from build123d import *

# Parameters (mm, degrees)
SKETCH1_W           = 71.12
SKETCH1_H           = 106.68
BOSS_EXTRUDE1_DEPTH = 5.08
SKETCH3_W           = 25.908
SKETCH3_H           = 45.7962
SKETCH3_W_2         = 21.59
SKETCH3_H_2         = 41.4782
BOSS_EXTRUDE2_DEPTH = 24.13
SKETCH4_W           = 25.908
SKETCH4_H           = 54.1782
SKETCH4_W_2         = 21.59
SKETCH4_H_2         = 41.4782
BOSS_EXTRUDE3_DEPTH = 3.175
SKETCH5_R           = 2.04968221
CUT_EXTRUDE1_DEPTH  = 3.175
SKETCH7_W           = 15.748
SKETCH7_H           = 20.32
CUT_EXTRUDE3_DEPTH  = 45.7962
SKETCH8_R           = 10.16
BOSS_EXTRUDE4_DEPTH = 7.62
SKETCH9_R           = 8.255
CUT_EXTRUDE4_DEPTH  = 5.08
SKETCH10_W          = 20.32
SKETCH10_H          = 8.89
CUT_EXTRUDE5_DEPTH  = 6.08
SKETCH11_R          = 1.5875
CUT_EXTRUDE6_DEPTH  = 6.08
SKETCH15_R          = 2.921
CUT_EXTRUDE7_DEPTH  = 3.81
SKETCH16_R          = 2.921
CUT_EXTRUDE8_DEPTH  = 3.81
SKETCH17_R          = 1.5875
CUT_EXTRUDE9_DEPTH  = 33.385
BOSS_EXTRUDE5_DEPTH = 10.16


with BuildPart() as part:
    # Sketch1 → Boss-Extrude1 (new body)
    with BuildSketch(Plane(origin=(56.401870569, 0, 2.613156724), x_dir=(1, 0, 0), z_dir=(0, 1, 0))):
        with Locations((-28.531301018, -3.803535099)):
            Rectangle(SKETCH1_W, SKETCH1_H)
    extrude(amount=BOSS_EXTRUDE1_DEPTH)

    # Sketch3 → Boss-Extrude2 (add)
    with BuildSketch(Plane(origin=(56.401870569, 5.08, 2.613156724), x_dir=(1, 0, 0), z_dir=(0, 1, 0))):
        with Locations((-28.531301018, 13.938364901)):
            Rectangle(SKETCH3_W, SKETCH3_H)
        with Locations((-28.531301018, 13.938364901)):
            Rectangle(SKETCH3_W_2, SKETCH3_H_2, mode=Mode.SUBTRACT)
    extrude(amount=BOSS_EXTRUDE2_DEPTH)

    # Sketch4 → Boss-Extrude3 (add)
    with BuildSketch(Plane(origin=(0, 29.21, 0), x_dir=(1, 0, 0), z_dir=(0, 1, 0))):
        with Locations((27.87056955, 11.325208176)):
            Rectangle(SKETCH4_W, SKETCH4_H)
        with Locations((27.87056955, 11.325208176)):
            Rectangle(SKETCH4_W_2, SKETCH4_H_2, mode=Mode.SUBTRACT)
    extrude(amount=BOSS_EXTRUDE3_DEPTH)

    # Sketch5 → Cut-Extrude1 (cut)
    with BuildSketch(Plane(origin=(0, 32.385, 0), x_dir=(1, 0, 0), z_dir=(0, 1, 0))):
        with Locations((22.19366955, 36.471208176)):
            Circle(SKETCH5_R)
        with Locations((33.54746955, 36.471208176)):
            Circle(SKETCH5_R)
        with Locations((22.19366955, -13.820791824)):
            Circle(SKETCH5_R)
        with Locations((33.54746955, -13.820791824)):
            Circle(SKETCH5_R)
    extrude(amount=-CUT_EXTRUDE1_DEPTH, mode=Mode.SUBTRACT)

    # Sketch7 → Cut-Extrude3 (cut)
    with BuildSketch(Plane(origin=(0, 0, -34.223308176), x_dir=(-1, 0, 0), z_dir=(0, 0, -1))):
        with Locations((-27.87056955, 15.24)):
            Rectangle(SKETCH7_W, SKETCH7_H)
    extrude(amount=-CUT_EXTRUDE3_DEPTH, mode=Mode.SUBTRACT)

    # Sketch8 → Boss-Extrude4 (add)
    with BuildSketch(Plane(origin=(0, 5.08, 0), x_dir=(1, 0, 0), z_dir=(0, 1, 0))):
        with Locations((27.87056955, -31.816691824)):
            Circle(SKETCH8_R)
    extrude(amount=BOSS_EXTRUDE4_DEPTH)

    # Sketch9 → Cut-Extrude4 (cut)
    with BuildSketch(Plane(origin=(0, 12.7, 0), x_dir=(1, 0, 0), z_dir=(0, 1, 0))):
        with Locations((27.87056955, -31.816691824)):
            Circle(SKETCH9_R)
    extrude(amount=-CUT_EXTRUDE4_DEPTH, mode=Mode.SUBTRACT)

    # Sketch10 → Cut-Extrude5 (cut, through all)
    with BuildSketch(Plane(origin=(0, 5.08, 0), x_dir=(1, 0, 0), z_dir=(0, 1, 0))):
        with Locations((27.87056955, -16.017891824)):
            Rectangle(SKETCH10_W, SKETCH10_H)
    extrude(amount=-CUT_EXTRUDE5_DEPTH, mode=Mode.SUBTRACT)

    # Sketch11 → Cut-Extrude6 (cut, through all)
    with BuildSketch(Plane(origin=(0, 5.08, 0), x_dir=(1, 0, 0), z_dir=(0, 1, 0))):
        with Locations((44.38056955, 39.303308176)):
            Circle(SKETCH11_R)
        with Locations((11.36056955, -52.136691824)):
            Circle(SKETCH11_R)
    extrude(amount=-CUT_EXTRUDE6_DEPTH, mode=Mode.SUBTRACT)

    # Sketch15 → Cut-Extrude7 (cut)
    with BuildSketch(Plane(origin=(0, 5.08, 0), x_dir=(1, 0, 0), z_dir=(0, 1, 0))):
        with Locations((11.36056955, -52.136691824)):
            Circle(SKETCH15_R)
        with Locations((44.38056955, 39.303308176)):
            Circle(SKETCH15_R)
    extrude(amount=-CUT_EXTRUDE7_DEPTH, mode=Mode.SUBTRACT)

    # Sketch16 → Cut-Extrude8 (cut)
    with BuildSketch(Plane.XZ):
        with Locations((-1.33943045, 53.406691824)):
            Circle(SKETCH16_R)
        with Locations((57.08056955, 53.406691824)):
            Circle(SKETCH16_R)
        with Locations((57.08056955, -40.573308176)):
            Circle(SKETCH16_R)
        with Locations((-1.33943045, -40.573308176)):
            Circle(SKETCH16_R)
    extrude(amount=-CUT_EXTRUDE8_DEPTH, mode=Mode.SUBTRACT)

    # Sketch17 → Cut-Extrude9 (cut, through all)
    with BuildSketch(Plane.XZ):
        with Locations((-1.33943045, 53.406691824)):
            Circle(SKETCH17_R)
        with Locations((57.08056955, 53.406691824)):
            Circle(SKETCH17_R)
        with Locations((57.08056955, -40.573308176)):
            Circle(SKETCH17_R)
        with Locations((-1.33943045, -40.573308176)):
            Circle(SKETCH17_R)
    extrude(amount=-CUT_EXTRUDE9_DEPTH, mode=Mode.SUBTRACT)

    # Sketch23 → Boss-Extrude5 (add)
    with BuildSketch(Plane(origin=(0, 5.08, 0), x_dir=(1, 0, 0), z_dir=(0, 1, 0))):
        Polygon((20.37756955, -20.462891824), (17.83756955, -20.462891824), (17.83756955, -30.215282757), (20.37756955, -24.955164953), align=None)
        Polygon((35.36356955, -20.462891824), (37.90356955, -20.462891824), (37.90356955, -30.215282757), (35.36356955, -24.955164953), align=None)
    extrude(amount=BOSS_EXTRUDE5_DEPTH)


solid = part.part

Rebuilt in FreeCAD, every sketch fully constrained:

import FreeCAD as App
import Part
import Sketcher
Q = App.Units.Quantity


def add_polygon(sketch, points):
    """Adds a closed chain of lines whose ends are joined by coincident constraints."""
    first, n = sketch.GeometryCount, len(points)
    for a, b in zip(points, points[1:] + points[:1]):
        sketch.addGeometry(Part.LineSegment(App.Vector(*a, 0), App.Vector(*b, 0)), False)
    for i in range(n):
        sketch.addConstraint(Sketcher.Constraint("Coincident", first + i, 2, first + (i + 1) % n, 1))

doc = App.newDocument("Part")
params = doc.addObject("Spreadsheet::Sheet", "Params")
for row, (alias, value) in enumerate([
    ("sketch1_width", "2.8 in"),
    ("sketch1_height", "4.2 in"),
    ("pad1_length", "0.2 in"),
    ("sketch2_width", "1.02 in"),
    ("sketch2_width2", "0.85 in"),
    ("sketch2_height", "1.803 in"),
    ("sketch2_height2", "1.633 in"),
    ("pad2_length", "0.95 in"),
    ("sketch3_width", "1.02 in"),
    ("sketch3_width2", "0.85 in"),
    ("sketch3_height", "2.133 in"),
    ("sketch3_height2", "1.633 in"),
    ("pad3_length", "0.125 in"),
    ("pocket1_length", "0.125 in"),
    ("sketch5_height", "0.8 in"),
    ("sketch5_width", "0.62 in"),
    ("pocket2_length", "1.803 in"),
    ("sketch6_diameter", "0.8 in"),
    ("pad4_length", "0.3 in"),
    ("sketch7_diameter", "0.65 in"),
    ("pocket3_length", "0.2 in"),
    ("sketch8_width", "0.8 in"),
    ("sketch8_height", "0.35 in"),
    ("sketch9_diameter", "0.125 in"),
    ("sketch10_diameter", "0.23 in"),
    ("pocket6_length", "0.15 in"),
    ("sketch11_diameter", "0.23 in"),
    ("pocket7_length", "0.15 in"),
    ("sketch12_diameter", "0.125 in"),
    ("sketch13_width", "0.1 in"),
    ("pad5_length", "0.4 in"),
], start=1):
    params.set(f"A{row}", alias)
    params.set(f"B{row}", "=" + value)
    params.setAlias(f"B{row}", alias)

body = doc.addObject("PartDesign::Body", "Body")

sketch1 = doc.addObject("Sketcher::SketchObject", "Sketch")
body.addObject(sketch1)
sketch1.AttachmentSupport = (doc.XZ_Plane, [""])
sketch1.MapMode = "FlatFace"
add_polygon(sketch1, [(-7.68943, -46.923308), (-7.68943, 59.756692), (63.43057, 59.756692), (63.43057, -46.923308)])
sketch1.addConstraint([
    Sketcher.Constraint("Vertical", 0),
    Sketcher.Constraint("Horizontal", 1),
    Sketcher.Constraint("Vertical", 2),
    Sketcher.Constraint("Horizontal", 3),
    Sketcher.Constraint("DistanceX", 1, 1, 1, 2, Q("2.8 in")),
    Sketcher.Constraint("DistanceY", 0, 1, 0, 2, Q("4.2 in")),
    Sketcher.Constraint("DistanceX", 0, 2, -1, 1, Q("7.68943 mm")),
    Sketcher.Constraint("DistanceY", -1, 1, 0, 2, Q("59.756692 mm")),
])
sketch1.setExpression("Constraints[8]", "Params.sketch1_width")
sketch1.setExpression("Constraints[9]", "Params.sketch1_height")
pad1 = doc.addObject("PartDesign::Pad", "Pad")
body.addObject(pad1)
pad1.Profile = sketch1
pad1.setExpression("Length", "Params.pad1_length")
pad1.Reversed = True

sketch2 = doc.addObject("Sketcher::SketchObject", "Sketch001")
body.addObject(sketch2)
sketch2.AttachmentSupport = (doc.XZ_Plane, [""])
sketch2.MapMode = "FlatFace"
sketch2.AttachmentOffset = App.Placement(App.Vector(0, 0, -0.2 * 25.4), App.Rotation())
add_polygon(sketch2, [(14.91657, -34.223308), (14.91657, 11.572892), (40.82457, 11.572892), (40.82457, -34.223308)])
add_polygon(sketch2, [(38.66557, 9.413892), (17.07557, 9.413892), (17.07557, -32.064308), (38.66557, -32.064308)])
sketch2.addConstraint([
    Sketcher.Constraint("Vertical", 0),
    Sketcher.Constraint("Horizontal", 1),
    Sketcher.Constraint("Vertical", 2),
    Sketcher.Constraint("Horizontal", 3),
    Sketcher.Constraint("Horizontal", 4),
    Sketcher.Constraint("Vertical", 5),
    Sketcher.Constraint("Horizontal", 6),
    Sketcher.Constraint("Vertical", 7),
    Sketcher.Constraint("DistanceX", 1, 1, 1, 2, Q("1.02 in")),
    Sketcher.Constraint("DistanceX", 4, 2, 4, 1, Q("0.85 in")),
    Sketcher.Constraint("DistanceY", 0, 1, 0, 2, Q("1.803 in")),
    Sketcher.Constraint("DistanceY", 5, 2, 5, 1, Q("1.633 in")),
    Sketcher.Constraint("DistanceX", 0, 2, 4, 2, Q("0.085 in")),
    Sketcher.Constraint("DistanceY", 4, 2, 0, 2, Q("0.085 in")),
    Sketcher.Constraint("DistanceX", -1, 1, 0, 2, Q("14.91657 mm")),
    Sketcher.Constraint("DistanceY", -1, 1, 0, 2, Q("11.572892 mm")),
])
sketch2.setExpression("Constraints[16]", "Params.sketch2_width")
sketch2.setExpression("Constraints[17]", "Params.sketch2_width2")
sketch2.setExpression("Constraints[18]", "Params.sketch2_height")
sketch2.setExpression("Constraints[19]", "Params.sketch2_height2")
pad2 = doc.addObject("PartDesign::Pad", "Pad001")
body.addObject(pad2)
pad2.Profile = sketch2
pad2.setExpression("Length", "Params.pad2_length")
pad2.Reversed = True

sketch3 = doc.addObject("Sketcher::SketchObject", "Sketch002")
body.addObject(sketch3)
sketch3.AttachmentSupport = (doc.XZ_Plane, [""])
sketch3.MapMode = "FlatFace"
sketch3.AttachmentOffset = App.Placement(App.Vector(0, 0, -1.15 * 25.4), App.Rotation())
add_polygon(sketch3, [(14.91657, -38.414308), (14.91657, 15.763892), (40.82457, 15.763892), (40.82457, -38.414308)])
add_polygon(sketch3, [(38.66557, 9.413892), (17.07557, 9.413892), (17.07557, -32.064308), (38.66557, -32.064308)])
sketch3.addConstraint([
    Sketcher.Constraint("Vertical", 0),
    Sketcher.Constraint("Horizontal", 1),
    Sketcher.Constraint("Vertical", 2),
    Sketcher.Constraint("Horizontal", 3),
    Sketcher.Constraint("Horizontal", 4),
    Sketcher.Constraint("Vertical", 5),
    Sketcher.Constraint("Horizontal", 6),
    Sketcher.Constraint("Vertical", 7),
    Sketcher.Constraint("DistanceX", 1, 1, 1, 2, Q("1.02 in")),
    Sketcher.Constraint("DistanceX", 4, 2, 4, 1, Q("0.85 in")),
    Sketcher.Constraint("DistanceY", 0, 1, 0, 2, Q("2.133 in")),
    Sketcher.Constraint("DistanceY", 5, 2, 5, 1, Q("1.633 in")),
    Sketcher.Constraint("DistanceY", 4, 2, 0, 2, Q("0.25 in")),
    Sketcher.Constraint("DistanceX", 0, 2, 4, 2, Q("0.085 in")),
    Sketcher.Constraint("DistanceX", -1, 1, 0, 2, Q("14.91657 mm")),
    Sketcher.Constraint("DistanceY", -1, 1, 0, 2, Q("15.763892 mm")),
])
sketch3.setExpression("Constraints[16]", "Params.sketch3_width")
sketch3.setExpression("Constraints[17]", "Params.sketch3_width2")
sketch3.setExpression("Constraints[18]", "Params.sketch3_height")
sketch3.setExpression("Constraints[19]", "Params.sketch3_height2")
pad3 = doc.addObject("PartDesign::Pad", "Pad002")
body.addObject(pad3)
pad3.Profile = sketch3
pad3.setExpression("Length", "Params.pad3_length")
pad3.Reversed = True

sketch4 = doc.addObject("Sketcher::SketchObject", "Sketch003")
body.addObject(sketch4)
sketch4.AttachmentSupport = (doc.XZ_Plane, [""])
sketch4.MapMode = "FlatFace"
sketch4.AttachmentOffset = App.Placement(App.Vector(0, 0, -1.275 * 25.4), App.Rotation())
sketch4.addGeometry([
    Part.Circle(App.Vector(22.19367, -36.471208, 0), App.Vector(0, 0, 1), 2.049682),
    Part.Circle(App.Vector(33.54747, -36.471208, 0), App.Vector(0, 0, 1), 2.049682),
    Part.Circle(App.Vector(22.19367, 13.820792, 0), App.Vector(0, 0, 1), 2.049682),
    Part.Circle(App.Vector(33.54747, 13.820792, 0), App.Vector(0, 0, 1), 2.049682),
], False)
sketch4.addConstraint([
    Sketcher.Constraint("Equal", 0, 1),
    Sketcher.Constraint("Equal", 1, 2),
    Sketcher.Constraint("Equal", 2, 3),
    Sketcher.Constraint("Horizontal", 0, 3, 1, 3),
    Sketcher.Constraint("Horizontal", 2, 3, 3, 3),
    Sketcher.Constraint("Vertical", 0, 3, 2, 3),
    Sketcher.Constraint("Vertical", 1, 3, 3, 3),
    Sketcher.Constraint("DistanceY", 0, 3, 2, 3, Q("1.98 in")),
    Sketcher.Constraint("DistanceX", 0, 3, 1, 3, Q("0.447 in")),
    Sketcher.Constraint("Diameter", 0, Q("4.099364 mm")),
    Sketcher.Constraint("DistanceX", -1, 1, 0, 3, Q("22.19367 mm")),
    Sketcher.Constraint("DistanceY", 0, 3, -1, 1, Q("36.471208 mm")),
])
pocket1 = doc.addObject("PartDesign::Pocket", "Pocket")
body.addObject(pocket1)
pocket1.Profile = sketch4
pocket1.setExpression("Length", "Params.pocket1_length")
pocket1.Reversed = True

sketch5 = doc.addObject("Sketcher::SketchObject", "Sketch004")
body.addObject(sketch5)
sketch5.AttachmentSupport = (doc.XY_Plane, [""])
sketch5.MapMode = "FlatFace"
sketch5.AttachmentOffset = App.Placement(App.Vector(0, 0, -34.223308), App.Rotation())
add_polygon(sketch5, [(35.74457, 25.4), (35.74457, 5.08), (19.99657, 5.08), (19.99657, 25.4)])
sketch5.addConstraint([
    Sketcher.Constraint("Vertical", 0),
    Sketcher.Constraint("Horizontal", 1),
    Sketcher.Constraint("Vertical", 2),
    Sketcher.Constraint("Horizontal", 3),
    Sketcher.Constraint("DistanceY", 0, 2, 0, 1, Q("0.8 in")),
    Sketcher.Constraint("DistanceY", -1, 1, 2, 2, Q("1 in")),
    Sketcher.Constraint("DistanceX", 1, 2, 1, 1, Q("0.62 in")),
    Sketcher.Constraint("DistanceX", -1, 1, 0, 2, Q("35.74457 mm")),
])
sketch5.setExpression("Constraints[8]", "Params.sketch5_height")
sketch5.setExpression("Constraints[10]", "Params.sketch5_width")
pocket2 = doc.addObject("PartDesign::Pocket", "Pocket001")
body.addObject(pocket2)
pocket2.Profile = sketch5
pocket2.setExpression("Length", "Params.pocket2_length")
pocket2.Reversed = True

sketch6 = doc.addObject("Sketcher::SketchObject", "Sketch005")
body.addObject(sketch6)
sketch6.AttachmentSupport = (doc.XZ_Plane, [""])
sketch6.MapMode = "FlatFace"
sketch6.AttachmentOffset = App.Placement(App.Vector(0, 0, -0.2 * 25.4), App.Rotation())
sketch6.addGeometry(Part.Circle(App.Vector(27.87057, 31.816692, 0), App.Vector(0, 0, 1), 10.16), False)
sketch6.addConstraint([
    Sketcher.Constraint("Diameter", 0, Q("0.8 in")),
    Sketcher.Constraint("DistanceX", -1, 1, 0, 3, Q("27.87057 mm")),
    Sketcher.Constraint("DistanceY", -1, 1, 0, 3, Q("31.816692 mm")),
])
sketch6.setExpression("Constraints[0]", "Params.sketch6_diameter")
pad4 = doc.addObject("PartDesign::Pad", "Pad003")
body.addObject(pad4)
pad4.Profile = sketch6
pad4.setExpression("Length", "Params.pad4_length")
pad4.Reversed = True

sketch7 = doc.addObject("Sketcher::SketchObject", "Sketch006")
body.addObject(sketch7)
sketch7.AttachmentSupport = (doc.XZ_Plane, [""])
sketch7.MapMode = "FlatFace"
sketch7.AttachmentOffset = App.Placement(App.Vector(0, 0, -0.5 * 25.4), App.Rotation())
sketch7.addGeometry(Part.Circle(App.Vector(27.87057, 31.816692, 0), App.Vector(0, 0, 1), 8.255), False)
sketch7.addConstraint([
    Sketcher.Constraint("Diameter", 0, Q("0.65 in")),
    Sketcher.Constraint("DistanceX", -1, 1, 0, 3, Q("27.87057 mm")),
    Sketcher.Constraint("DistanceY", -1, 1, 0, 3, Q("31.816692 mm")),
])
sketch7.setExpression("Constraints[0]", "Params.sketch7_diameter")
pocket3 = doc.addObject("PartDesign::Pocket", "Pocket002")
body.addObject(pocket3)
pocket3.Profile = sketch7
pocket3.setExpression("Length", "Params.pocket3_length")
pocket3.Reversed = True

sketch8 = doc.addObject("Sketcher::SketchObject", "Sketch007")
body.addObject(sketch8)
sketch8.AttachmentSupport = (doc.XZ_Plane, [""])
sketch8.MapMode = "FlatFace"
sketch8.AttachmentOffset = App.Placement(App.Vector(0, 0, -0.2 * 25.4), App.Rotation())
add_polygon(sketch8, [(17.71057, 11.572892), (17.71057, 20.462892), (38.03057, 20.462892), (38.03057, 11.572892)])
sketch8.addConstraint([
    Sketcher.Constraint("Vertical", 0),
    Sketcher.Constraint("Horizontal", 1),
    Sketcher.Constraint("Vertical", 2),
    Sketcher.Constraint("Horizontal", 3),
    Sketcher.Constraint("DistanceX", 1, 1, 1, 2, Q("0.8 in")),
    Sketcher.Constraint("DistanceY", 0, 1, 0, 2, Q("0.35 in")),
    Sketcher.Constraint("DistanceX", -1, 1, 0, 2, Q("17.71057 mm")),
    Sketcher.Constraint("DistanceY", -1, 1, 0, 2, Q("20.462892 mm")),
])
sketch8.setExpression("Constraints[8]", "Params.sketch8_width")
sketch8.setExpression("Constraints[9]", "Params.sketch8_height")
pocket4 = doc.addObject("PartDesign::Pocket", "Pocket003")
body.addObject(pocket4)
pocket4.Profile = sketch8
pocket4.Type = "ThroughAll"
pocket4.Reversed = True

sketch9 = doc.addObject("Sketcher::SketchObject", "Sketch008")
body.addObject(sketch9)
sketch9.AttachmentSupport = (doc.XZ_Plane, [""])
sketch9.MapMode = "FlatFace"
sketch9.AttachmentOffset = App.Placement(App.Vector(0, 0, -0.2 * 25.4), App.Rotation())
sketch9.addGeometry([
    Part.Circle(App.Vector(44.38057, -39.303308, 0), App.Vector(0, 0, 1), 1.5875),
    Part.Circle(App.Vector(11.36057, 52.136692, 0), App.Vector(0, 0, 1), 1.5875),
], False)
sketch9.addConstraint([
    Sketcher.Constraint("Equal", 0, 1),
    Sketcher.Constraint("Diameter", 0, Q("0.125 in")),
    Sketcher.Constraint("DistanceX", 1, 3, 0, 3, Q("1.3 in")),
    Sketcher.Constraint("DistanceY", 0, 3, 1, 3, Q("3.6 in")),
    Sketcher.Constraint("DistanceX", -1, 1, 0, 3, Q("44.38057 mm")),
    Sketcher.Constraint("DistanceY", 0, 3, -1, 1, Q("39.303308 mm")),
])
sketch9.setExpression("Constraints[1]", "Params.sketch9_diameter")
pocket5 = doc.addObject("PartDesign::Pocket", "Pocket004")
body.addObject(pocket5)
pocket5.Profile = sketch9
pocket5.Type = "ThroughAll"
pocket5.Reversed = True

sketch10 = doc.addObject("Sketcher::SketchObject", "Sketch009")
body.addObject(sketch10)
sketch10.AttachmentSupport = (doc.XZ_Plane, [""])
sketch10.MapMode = "FlatFace"
sketch10.AttachmentOffset = App.Placement(App.Vector(0, 0, -0.2 * 25.4), App.Rotation())
sketch10.addGeometry([
    Part.Circle(App.Vector(11.36057, 52.136692, 0), App.Vector(0, 0, 1), 2.921),
    Part.Circle(App.Vector(44.38057, -39.303308, 0), App.Vector(0, 0, 1), 2.921),
], False)
sketch10.addConstraint([
    Sketcher.Constraint("Equal", 0, 1),
    Sketcher.Constraint("Diameter", 0, Q("0.23 in")),
    Sketcher.Constraint("DistanceX", 0, 3, 1, 3, Q("1.3 in")),
    Sketcher.Constraint("DistanceY", 1, 3, 0, 3, Q("3.6 in")),
    Sketcher.Constraint("DistanceX", -1, 1, 0, 3, Q("11.36057 mm")),
    Sketcher.Constraint("DistanceY", -1, 1, 0, 3, Q("52.136692 mm")),
])
sketch10.setExpression("Constraints[1]", "Params.sketch10_diameter")
pocket6 = doc.addObject("PartDesign::Pocket", "Pocket005")
body.addObject(pocket6)
pocket6.Profile = sketch10
pocket6.setExpression("Length", "Params.pocket6_length")
pocket6.Reversed = True

sketch11 = doc.addObject("Sketcher::SketchObject", "Sketch010")
body.addObject(sketch11)
sketch11.AttachmentSupport = (doc.XZ_Plane, [""])
sketch11.MapMode = "FlatFace"
sketch11.addGeometry([
    Part.Circle(App.Vector(-1.33943, 53.406692, 0), App.Vector(0, 0, 1), 2.921),
    Part.Circle(App.Vector(57.08057, 53.406692, 0), App.Vector(0, 0, 1), 2.921),
    Part.Circle(App.Vector(57.08057, -40.573308, 0), App.Vector(0, 0, 1), 2.921),
    Part.Circle(App.Vector(-1.33943, -40.573308, 0), App.Vector(0, 0, 1), 2.921),
], False)
sketch11.addConstraint([
    Sketcher.Constraint("Equal", 0, 1),
    Sketcher.Constraint("Equal", 1, 2),
    Sketcher.Constraint("Equal", 2, 3),
    Sketcher.Constraint("Horizontal", 0, 3, 1, 3),
    Sketcher.Constraint("Horizontal", 2, 3, 3, 3),
    Sketcher.Constraint("Vertical", 1, 3, 2, 3),
    Sketcher.Constraint("Vertical", 0, 3, 3, 3),
    Sketcher.Constraint("Diameter", 0, Q("0.23 in")),
    Sketcher.Constraint("DistanceX", 0, 3, 1, 3, Q("2.3 in")),
    Sketcher.Constraint("DistanceY", 2, 3, 1, 3, Q("3.7 in")),
    Sketcher.Constraint("DistanceX", 0, 3, -1, 1, Q("1.33943 mm")),
    Sketcher.Constraint("DistanceY", -1, 1, 0, 3, Q("53.406692 mm")),
])
sketch11.setExpression("Constraints[7]", "Params.sketch11_diameter")
pocket7 = doc.addObject("PartDesign::Pocket", "Pocket006")
body.addObject(pocket7)
pocket7.Profile = sketch11
pocket7.setExpression("Length", "Params.pocket7_length")

sketch12 = doc.addObject("Sketcher::SketchObject", "Sketch011")
body.addObject(sketch12)
sketch12.AttachmentSupport = (doc.XZ_Plane, [""])
sketch12.MapMode = "FlatFace"
sketch12.addGeometry([
    Part.Circle(App.Vector(-1.33943, 53.406692, 0), App.Vector(0, 0, 1), 1.5875),
    Part.Circle(App.Vector(57.08057, 53.406692, 0), App.Vector(0, 0, 1), 1.5875),
    Part.Circle(App.Vector(57.08057, -40.573308, 0), App.Vector(0, 0, 1), 1.5875),
    Part.Circle(App.Vector(-1.33943, -40.573308, 0), App.Vector(0, 0, 1), 1.5875),
], False)
sketch12.addConstraint([
    Sketcher.Constraint("Equal", 0, 1),
    Sketcher.Constraint("Equal", 1, 2),
    Sketcher.Constraint("Equal", 2, 3),
    Sketcher.Constraint("Horizontal", 0, 3, 1, 3),
    Sketcher.Constraint("Horizontal", 2, 3, 3, 3),
    Sketcher.Constraint("Vertical", 1, 3, 2, 3),
    Sketcher.Constraint("Vertical", 0, 3, 3, 3),
    Sketcher.Constraint("Diameter", 0, Q("0.125 in")),
    Sketcher.Constraint("DistanceX", 0, 3, 1, 3, Q("2.3 in")),
    Sketcher.Constraint("DistanceY", 2, 3, 1, 3, Q("3.7 in")),
    Sketcher.Constraint("DistanceX", 0, 3, -1, 1, Q("1.33943 mm")),
    Sketcher.Constraint("DistanceY", -1, 1, 0, 3, Q("53.406692 mm")),
])
sketch12.setExpression("Constraints[7]", "Params.sketch12_diameter")
pocket8 = doc.addObject("PartDesign::Pocket", "Pocket007")
body.addObject(pocket8)
pocket8.Profile = sketch12
pocket8.Type = "ThroughAll"

sketch13 = doc.addObject("Sketcher::SketchObject", "Sketch012")
body.addObject(sketch13)
sketch13.AttachmentSupport = (doc.XZ_Plane, [""])
sketch13.MapMode = "FlatFace"
sketch13.AttachmentOffset = App.Placement(App.Vector(0, 0, -0.2 * 25.4), App.Rotation())
add_polygon(sketch13, [(20.37757, 20.462892), (17.83757, 20.462892), (17.83757, 30.215283), (20.37757, 24.955165)])
add_polygon(sketch13, [(37.90357, 20.462892), (35.36357, 20.462892), (35.36357, 24.955165), (37.90357, 30.215283)])
sketch13.addConstraint([
    Sketcher.Constraint("Horizontal", 0),
    Sketcher.Constraint("Vertical", 1),
    Sketcher.Constraint("Vertical", 3),
    Sketcher.Constraint("Horizontal", 4),
    Sketcher.Constraint("Vertical", 5),
    Sketcher.Constraint("Vertical", 7),
    Sketcher.Constraint("Horizontal", 3, 2, 4, 2),
    Sketcher.Constraint("Horizontal", 2, 2, 5, 2),
    Sketcher.Constraint("Horizontal", 1, 2, 6, 2),
    Sketcher.Constraint("Equal", 0, 4),
    Sketcher.Constraint("DistanceX", 0, 2, 0, 1, Q("0.1 in")),
    Sketcher.Constraint("DistanceX", 3, 2, 4, 2, Q("0.59 in")),
    Sketcher.Constraint("DistanceY", 1, 1, 1, 2, Q("9.752391 mm")),
    Sketcher.Constraint("Distance", 2, Q("5.84127 mm")),
    Sketcher.Constraint("DistanceX", -1, 1, 0, 2, Q("17.83757 mm")),
    Sketcher.Constraint("DistanceY", -1, 1, 0, 2, Q("20.462892 mm")),
])
sketch13.setExpression("Constraints[18]", "Params.sketch13_width")
pad5 = doc.addObject("PartDesign::Pad", "Pad004")
body.addObject(pad5)
pad5.Profile = sketch13
pad5.setExpression("Length", "Params.pad5_length")
pad5.Reversed = True

doc.recompute()
